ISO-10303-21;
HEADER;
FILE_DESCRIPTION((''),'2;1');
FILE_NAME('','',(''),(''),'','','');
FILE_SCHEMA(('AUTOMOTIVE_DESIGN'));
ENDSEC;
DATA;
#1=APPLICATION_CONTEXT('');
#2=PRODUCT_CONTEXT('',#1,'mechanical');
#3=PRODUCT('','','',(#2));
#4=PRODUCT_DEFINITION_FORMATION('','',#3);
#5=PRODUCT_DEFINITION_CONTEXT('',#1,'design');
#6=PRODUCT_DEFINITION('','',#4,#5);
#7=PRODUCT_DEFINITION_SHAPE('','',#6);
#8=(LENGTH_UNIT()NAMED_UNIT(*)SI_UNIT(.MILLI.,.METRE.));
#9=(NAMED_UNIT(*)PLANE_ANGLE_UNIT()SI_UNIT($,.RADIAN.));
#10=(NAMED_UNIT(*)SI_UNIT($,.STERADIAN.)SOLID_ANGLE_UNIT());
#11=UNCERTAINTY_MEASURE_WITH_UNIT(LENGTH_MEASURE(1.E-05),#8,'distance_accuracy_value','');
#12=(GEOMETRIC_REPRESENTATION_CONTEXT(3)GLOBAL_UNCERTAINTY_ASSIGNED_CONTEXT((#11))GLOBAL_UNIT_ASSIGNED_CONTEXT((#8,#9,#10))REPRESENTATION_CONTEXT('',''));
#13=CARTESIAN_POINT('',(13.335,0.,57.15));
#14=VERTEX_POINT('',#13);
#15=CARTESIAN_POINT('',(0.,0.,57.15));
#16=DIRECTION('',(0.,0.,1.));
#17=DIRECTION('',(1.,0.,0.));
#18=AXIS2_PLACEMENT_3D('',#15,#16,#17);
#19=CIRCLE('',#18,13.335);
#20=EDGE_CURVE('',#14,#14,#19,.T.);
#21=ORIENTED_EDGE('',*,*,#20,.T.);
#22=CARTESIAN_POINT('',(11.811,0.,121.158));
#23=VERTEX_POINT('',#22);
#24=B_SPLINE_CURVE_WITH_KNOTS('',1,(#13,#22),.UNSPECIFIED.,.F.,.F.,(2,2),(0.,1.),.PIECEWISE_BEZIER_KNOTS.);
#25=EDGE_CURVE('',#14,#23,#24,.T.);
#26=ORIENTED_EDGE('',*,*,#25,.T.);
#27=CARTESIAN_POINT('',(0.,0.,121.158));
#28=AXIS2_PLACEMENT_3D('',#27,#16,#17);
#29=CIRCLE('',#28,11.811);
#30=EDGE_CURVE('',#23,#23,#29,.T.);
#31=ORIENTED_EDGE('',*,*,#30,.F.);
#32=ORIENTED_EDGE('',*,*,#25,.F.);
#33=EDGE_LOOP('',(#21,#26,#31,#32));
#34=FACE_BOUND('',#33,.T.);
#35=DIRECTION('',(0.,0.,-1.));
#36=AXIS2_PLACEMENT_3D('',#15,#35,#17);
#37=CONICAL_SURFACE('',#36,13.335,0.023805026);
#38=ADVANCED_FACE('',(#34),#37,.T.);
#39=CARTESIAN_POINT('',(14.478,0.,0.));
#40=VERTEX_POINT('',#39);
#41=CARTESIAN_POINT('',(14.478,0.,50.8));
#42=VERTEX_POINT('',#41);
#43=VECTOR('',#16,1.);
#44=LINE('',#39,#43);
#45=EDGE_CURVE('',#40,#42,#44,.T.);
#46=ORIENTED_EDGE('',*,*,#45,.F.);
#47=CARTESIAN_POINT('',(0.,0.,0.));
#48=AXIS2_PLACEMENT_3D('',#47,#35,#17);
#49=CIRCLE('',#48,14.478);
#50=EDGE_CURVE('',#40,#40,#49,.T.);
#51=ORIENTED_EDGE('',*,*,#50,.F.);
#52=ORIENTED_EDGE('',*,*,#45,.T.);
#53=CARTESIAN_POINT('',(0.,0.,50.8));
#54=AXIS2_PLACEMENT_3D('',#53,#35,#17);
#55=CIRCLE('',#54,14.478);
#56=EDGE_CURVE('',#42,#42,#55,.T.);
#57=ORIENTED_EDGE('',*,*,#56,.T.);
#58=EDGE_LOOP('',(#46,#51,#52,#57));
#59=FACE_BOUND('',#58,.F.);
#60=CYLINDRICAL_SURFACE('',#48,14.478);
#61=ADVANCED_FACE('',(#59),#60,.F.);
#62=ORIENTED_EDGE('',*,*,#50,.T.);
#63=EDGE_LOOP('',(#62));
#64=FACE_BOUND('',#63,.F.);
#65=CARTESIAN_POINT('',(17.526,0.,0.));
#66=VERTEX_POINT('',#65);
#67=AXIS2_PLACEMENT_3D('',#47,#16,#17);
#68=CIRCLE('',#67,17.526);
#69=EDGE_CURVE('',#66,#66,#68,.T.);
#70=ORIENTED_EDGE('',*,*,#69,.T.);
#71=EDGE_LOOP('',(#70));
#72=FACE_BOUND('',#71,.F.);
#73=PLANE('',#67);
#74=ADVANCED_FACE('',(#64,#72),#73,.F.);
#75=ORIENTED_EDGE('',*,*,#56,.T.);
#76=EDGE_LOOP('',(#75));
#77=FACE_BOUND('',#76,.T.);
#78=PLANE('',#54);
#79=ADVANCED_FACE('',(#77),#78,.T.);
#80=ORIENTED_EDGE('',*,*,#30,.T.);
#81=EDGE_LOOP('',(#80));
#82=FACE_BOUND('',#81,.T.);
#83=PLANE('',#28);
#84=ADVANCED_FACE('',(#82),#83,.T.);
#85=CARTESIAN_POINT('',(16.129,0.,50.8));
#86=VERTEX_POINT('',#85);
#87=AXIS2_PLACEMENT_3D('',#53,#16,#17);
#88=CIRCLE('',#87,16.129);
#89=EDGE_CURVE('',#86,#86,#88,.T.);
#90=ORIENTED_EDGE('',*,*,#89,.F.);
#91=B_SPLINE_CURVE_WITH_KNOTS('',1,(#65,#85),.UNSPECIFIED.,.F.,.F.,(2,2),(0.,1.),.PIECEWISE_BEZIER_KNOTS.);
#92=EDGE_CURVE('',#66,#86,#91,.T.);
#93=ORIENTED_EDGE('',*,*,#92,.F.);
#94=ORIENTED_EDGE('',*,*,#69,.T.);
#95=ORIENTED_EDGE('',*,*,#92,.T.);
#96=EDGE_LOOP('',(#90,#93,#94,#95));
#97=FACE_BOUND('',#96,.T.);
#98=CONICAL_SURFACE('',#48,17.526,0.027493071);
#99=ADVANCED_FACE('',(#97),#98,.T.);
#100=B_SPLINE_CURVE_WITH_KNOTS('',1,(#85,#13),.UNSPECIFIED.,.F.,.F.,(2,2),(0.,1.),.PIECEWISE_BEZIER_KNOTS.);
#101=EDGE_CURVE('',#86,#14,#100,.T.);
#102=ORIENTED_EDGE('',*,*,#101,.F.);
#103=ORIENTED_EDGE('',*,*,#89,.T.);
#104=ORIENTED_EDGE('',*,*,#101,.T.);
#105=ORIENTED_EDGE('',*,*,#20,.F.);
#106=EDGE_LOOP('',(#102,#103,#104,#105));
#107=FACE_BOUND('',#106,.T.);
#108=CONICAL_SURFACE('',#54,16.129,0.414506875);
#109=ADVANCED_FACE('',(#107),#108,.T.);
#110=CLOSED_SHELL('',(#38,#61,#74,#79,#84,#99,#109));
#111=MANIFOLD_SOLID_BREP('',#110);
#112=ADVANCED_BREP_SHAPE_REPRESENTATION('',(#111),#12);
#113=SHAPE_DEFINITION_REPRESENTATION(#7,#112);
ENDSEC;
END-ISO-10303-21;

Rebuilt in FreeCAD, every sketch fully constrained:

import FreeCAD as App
import Part
import Sketcher

V = App.Vector
Q = App.Units.Quantity

doc = App.newDocument("Part")
body = doc.addObject("PartDesign::Body", "Body")

# Sketch on XY plane
sketch1 = doc.addObject("Sketcher::SketchObject", "Sketch")
body.addObject(sketch1)
sketch1.AttachmentSupport = (doc.XY_Plane, [""])
sketch1.MapMode = "FlatFace"
sketch1.addGeometry(Part.Circle(V(0, 0, 0), V(0, 0, 1), 17.526), False)
sketch1.addConstraint(Sketcher.Constraint("Coincident", 0, 3, -1, 1))
sketch1.addConstraint(Sketcher.Constraint("Diameter", 0, Q("1.38 in")))

# Sketch on XY plane
sketch2 = doc.addObject("Sketcher::SketchObject", "Sketch001")
body.addObject(sketch2)
sketch2.AttachmentSupport = (doc.XY_Plane, [""])
sketch2.MapMode = "FlatFace"
sketch2.AttachmentOffset = App.Placement(V(0, 0, 2 * 25.4), App.Rotation())
sketch2.addGeometry(Part.Circle(V(0, 0, 0), V(0, 0, 1), 16.129), False)
sketch2.addConstraint(Sketcher.Constraint("Coincident", 0, 3, -1, 1))
sketch2.addConstraint(Sketcher.Constraint("Diameter", 0, Q("1.27 in")))

additiveloft = doc.addObject("PartDesign::AdditiveLoft", "AdditiveLoft")
body.addObject(additiveloft)
additiveloft.Profile = sketch1
additiveloft.Sections = [sketch2]

# Sketch on XY plane
sketch3 = doc.addObject("Sketcher::SketchObject", "Sketch002")
body.addObject(sketch3)
sketch3.AttachmentSupport = (doc.XY_Plane, [""])
sketch3.MapMode = "FlatFace"
sketch3.AttachmentOffset = App.Placement(V(0, 0, 2 * 25.4), App.Rotation())
sketch3.addGeometry(Part.Circle(V(0, 0, 0), V(0, 0, 1), 16.129), False)
sketch3.addConstraint(Sketcher.Constraint("Coincident", 0, 3, -1, 1))
sketch3.addConstraint(Sketcher.Constraint("Diameter", 0, Q("1.27 in")))

# Sketch on XY plane
sketch4 = doc.addObject("Sketcher::SketchObject", "Sketch003")
body.addObject(sketch4)
sketch4.AttachmentSupport = (doc.XY_Plane, [""])
sketch4.MapMode = "FlatFace"
sketch4.AttachmentOffset = App.Placement(V(0, 0, 2.25 * 25.4), App.Rotation())
sketch4.addGeometry(Part.Circle(V(0, 0, 0), V(0, 0, 1), 13.335), False)
sketch4.addConstraint(Sketcher.Constraint("Coincident", 0, 3, -1, 1))
sketch4.addConstraint(Sketcher.Constraint("Diameter", 0, Q("1.05 in")))

additiveloft2 = doc.addObject("PartDesign::AdditiveLoft", "AdditiveLoft001")
body.addObject(additiveloft2)
additiveloft2.Profile = sketch3
additiveloft2.Sections = [sketch4]

# Sketch on XY plane
sketch5 = doc.addObject("Sketcher::SketchObject", "Sketch004")
body.addObject(sketch5)
sketch5.AttachmentSupport = (doc.XY_Plane, [""])
sketch5.MapMode = "FlatFace"
sketch5.AttachmentOffset = App.Placement(V(0, 0, 2.25 * 25.4), App.Rotation())
sketch5.addGeometry(Part.Circle(V(0, 0, 0), V(0, 0, 1), 13.335), False)
sketch5.addConstraint(Sketcher.Constraint("Coincident", 0, 3, -1, 1))
sketch5.addConstraint(Sketcher.Constraint("Diameter", 0, Q("1.05 in")))

# Sketch on XY plane
sketch6 = doc.addObject("Sketcher::SketchObject", "Sketch005")
body.addObject(sketch6)
sketch6.AttachmentSupport = (doc.XY_Plane, [""])
sketch6.MapMode = "FlatFace"
sketch6.AttachmentOffset = App.Placement(V(0, 0, 4.77 * 25.4), App.Rotation())
sketch6.addGeometry(Part.Circle(V(0, 0, 0), V(0, 0, 1), 11.811), False)
sketch6.addConstraint(Sketcher.Constraint("Coincident", 0, 3, -1, 1))
sketch6.addConstraint(Sketcher.Constraint("Diameter", 0, Q("0.93 in")))

additiveloft3 = doc.addObject("PartDesign::AdditiveLoft", "AdditiveLoft002")
body.addObject(additiveloft3)
additiveloft3.Profile = sketch5
additiveloft3.Sections = [sketch6]

# Sketch on XY plane
sketch7 = doc.addObject("Sketcher::SketchObject", "Sketch006")
body.addObject(sketch7)
sketch7.AttachmentSupport = (doc.XY_Plane, [""])
sketch7.MapMode = "FlatFace"
sketch7.addGeometry(Part.Circle(V(0, 0, 0), V(0, 0, 1), 14.478), False)
sketch7.addConstraint(Sketcher.Constraint("Coincident", 0, 3, -1, 1))
sketch7.addConstraint(Sketcher.Constraint("Diameter", 0, Q("1.14 in")))
pocket1 = doc.addObject("PartDesign::Pocket", "Pocket")
body.addObject(pocket1)
pocket1.Profile = sketch7
pocket1.Length = Q("2 in")
pocket1.Reversed = True

doc.recompute()
